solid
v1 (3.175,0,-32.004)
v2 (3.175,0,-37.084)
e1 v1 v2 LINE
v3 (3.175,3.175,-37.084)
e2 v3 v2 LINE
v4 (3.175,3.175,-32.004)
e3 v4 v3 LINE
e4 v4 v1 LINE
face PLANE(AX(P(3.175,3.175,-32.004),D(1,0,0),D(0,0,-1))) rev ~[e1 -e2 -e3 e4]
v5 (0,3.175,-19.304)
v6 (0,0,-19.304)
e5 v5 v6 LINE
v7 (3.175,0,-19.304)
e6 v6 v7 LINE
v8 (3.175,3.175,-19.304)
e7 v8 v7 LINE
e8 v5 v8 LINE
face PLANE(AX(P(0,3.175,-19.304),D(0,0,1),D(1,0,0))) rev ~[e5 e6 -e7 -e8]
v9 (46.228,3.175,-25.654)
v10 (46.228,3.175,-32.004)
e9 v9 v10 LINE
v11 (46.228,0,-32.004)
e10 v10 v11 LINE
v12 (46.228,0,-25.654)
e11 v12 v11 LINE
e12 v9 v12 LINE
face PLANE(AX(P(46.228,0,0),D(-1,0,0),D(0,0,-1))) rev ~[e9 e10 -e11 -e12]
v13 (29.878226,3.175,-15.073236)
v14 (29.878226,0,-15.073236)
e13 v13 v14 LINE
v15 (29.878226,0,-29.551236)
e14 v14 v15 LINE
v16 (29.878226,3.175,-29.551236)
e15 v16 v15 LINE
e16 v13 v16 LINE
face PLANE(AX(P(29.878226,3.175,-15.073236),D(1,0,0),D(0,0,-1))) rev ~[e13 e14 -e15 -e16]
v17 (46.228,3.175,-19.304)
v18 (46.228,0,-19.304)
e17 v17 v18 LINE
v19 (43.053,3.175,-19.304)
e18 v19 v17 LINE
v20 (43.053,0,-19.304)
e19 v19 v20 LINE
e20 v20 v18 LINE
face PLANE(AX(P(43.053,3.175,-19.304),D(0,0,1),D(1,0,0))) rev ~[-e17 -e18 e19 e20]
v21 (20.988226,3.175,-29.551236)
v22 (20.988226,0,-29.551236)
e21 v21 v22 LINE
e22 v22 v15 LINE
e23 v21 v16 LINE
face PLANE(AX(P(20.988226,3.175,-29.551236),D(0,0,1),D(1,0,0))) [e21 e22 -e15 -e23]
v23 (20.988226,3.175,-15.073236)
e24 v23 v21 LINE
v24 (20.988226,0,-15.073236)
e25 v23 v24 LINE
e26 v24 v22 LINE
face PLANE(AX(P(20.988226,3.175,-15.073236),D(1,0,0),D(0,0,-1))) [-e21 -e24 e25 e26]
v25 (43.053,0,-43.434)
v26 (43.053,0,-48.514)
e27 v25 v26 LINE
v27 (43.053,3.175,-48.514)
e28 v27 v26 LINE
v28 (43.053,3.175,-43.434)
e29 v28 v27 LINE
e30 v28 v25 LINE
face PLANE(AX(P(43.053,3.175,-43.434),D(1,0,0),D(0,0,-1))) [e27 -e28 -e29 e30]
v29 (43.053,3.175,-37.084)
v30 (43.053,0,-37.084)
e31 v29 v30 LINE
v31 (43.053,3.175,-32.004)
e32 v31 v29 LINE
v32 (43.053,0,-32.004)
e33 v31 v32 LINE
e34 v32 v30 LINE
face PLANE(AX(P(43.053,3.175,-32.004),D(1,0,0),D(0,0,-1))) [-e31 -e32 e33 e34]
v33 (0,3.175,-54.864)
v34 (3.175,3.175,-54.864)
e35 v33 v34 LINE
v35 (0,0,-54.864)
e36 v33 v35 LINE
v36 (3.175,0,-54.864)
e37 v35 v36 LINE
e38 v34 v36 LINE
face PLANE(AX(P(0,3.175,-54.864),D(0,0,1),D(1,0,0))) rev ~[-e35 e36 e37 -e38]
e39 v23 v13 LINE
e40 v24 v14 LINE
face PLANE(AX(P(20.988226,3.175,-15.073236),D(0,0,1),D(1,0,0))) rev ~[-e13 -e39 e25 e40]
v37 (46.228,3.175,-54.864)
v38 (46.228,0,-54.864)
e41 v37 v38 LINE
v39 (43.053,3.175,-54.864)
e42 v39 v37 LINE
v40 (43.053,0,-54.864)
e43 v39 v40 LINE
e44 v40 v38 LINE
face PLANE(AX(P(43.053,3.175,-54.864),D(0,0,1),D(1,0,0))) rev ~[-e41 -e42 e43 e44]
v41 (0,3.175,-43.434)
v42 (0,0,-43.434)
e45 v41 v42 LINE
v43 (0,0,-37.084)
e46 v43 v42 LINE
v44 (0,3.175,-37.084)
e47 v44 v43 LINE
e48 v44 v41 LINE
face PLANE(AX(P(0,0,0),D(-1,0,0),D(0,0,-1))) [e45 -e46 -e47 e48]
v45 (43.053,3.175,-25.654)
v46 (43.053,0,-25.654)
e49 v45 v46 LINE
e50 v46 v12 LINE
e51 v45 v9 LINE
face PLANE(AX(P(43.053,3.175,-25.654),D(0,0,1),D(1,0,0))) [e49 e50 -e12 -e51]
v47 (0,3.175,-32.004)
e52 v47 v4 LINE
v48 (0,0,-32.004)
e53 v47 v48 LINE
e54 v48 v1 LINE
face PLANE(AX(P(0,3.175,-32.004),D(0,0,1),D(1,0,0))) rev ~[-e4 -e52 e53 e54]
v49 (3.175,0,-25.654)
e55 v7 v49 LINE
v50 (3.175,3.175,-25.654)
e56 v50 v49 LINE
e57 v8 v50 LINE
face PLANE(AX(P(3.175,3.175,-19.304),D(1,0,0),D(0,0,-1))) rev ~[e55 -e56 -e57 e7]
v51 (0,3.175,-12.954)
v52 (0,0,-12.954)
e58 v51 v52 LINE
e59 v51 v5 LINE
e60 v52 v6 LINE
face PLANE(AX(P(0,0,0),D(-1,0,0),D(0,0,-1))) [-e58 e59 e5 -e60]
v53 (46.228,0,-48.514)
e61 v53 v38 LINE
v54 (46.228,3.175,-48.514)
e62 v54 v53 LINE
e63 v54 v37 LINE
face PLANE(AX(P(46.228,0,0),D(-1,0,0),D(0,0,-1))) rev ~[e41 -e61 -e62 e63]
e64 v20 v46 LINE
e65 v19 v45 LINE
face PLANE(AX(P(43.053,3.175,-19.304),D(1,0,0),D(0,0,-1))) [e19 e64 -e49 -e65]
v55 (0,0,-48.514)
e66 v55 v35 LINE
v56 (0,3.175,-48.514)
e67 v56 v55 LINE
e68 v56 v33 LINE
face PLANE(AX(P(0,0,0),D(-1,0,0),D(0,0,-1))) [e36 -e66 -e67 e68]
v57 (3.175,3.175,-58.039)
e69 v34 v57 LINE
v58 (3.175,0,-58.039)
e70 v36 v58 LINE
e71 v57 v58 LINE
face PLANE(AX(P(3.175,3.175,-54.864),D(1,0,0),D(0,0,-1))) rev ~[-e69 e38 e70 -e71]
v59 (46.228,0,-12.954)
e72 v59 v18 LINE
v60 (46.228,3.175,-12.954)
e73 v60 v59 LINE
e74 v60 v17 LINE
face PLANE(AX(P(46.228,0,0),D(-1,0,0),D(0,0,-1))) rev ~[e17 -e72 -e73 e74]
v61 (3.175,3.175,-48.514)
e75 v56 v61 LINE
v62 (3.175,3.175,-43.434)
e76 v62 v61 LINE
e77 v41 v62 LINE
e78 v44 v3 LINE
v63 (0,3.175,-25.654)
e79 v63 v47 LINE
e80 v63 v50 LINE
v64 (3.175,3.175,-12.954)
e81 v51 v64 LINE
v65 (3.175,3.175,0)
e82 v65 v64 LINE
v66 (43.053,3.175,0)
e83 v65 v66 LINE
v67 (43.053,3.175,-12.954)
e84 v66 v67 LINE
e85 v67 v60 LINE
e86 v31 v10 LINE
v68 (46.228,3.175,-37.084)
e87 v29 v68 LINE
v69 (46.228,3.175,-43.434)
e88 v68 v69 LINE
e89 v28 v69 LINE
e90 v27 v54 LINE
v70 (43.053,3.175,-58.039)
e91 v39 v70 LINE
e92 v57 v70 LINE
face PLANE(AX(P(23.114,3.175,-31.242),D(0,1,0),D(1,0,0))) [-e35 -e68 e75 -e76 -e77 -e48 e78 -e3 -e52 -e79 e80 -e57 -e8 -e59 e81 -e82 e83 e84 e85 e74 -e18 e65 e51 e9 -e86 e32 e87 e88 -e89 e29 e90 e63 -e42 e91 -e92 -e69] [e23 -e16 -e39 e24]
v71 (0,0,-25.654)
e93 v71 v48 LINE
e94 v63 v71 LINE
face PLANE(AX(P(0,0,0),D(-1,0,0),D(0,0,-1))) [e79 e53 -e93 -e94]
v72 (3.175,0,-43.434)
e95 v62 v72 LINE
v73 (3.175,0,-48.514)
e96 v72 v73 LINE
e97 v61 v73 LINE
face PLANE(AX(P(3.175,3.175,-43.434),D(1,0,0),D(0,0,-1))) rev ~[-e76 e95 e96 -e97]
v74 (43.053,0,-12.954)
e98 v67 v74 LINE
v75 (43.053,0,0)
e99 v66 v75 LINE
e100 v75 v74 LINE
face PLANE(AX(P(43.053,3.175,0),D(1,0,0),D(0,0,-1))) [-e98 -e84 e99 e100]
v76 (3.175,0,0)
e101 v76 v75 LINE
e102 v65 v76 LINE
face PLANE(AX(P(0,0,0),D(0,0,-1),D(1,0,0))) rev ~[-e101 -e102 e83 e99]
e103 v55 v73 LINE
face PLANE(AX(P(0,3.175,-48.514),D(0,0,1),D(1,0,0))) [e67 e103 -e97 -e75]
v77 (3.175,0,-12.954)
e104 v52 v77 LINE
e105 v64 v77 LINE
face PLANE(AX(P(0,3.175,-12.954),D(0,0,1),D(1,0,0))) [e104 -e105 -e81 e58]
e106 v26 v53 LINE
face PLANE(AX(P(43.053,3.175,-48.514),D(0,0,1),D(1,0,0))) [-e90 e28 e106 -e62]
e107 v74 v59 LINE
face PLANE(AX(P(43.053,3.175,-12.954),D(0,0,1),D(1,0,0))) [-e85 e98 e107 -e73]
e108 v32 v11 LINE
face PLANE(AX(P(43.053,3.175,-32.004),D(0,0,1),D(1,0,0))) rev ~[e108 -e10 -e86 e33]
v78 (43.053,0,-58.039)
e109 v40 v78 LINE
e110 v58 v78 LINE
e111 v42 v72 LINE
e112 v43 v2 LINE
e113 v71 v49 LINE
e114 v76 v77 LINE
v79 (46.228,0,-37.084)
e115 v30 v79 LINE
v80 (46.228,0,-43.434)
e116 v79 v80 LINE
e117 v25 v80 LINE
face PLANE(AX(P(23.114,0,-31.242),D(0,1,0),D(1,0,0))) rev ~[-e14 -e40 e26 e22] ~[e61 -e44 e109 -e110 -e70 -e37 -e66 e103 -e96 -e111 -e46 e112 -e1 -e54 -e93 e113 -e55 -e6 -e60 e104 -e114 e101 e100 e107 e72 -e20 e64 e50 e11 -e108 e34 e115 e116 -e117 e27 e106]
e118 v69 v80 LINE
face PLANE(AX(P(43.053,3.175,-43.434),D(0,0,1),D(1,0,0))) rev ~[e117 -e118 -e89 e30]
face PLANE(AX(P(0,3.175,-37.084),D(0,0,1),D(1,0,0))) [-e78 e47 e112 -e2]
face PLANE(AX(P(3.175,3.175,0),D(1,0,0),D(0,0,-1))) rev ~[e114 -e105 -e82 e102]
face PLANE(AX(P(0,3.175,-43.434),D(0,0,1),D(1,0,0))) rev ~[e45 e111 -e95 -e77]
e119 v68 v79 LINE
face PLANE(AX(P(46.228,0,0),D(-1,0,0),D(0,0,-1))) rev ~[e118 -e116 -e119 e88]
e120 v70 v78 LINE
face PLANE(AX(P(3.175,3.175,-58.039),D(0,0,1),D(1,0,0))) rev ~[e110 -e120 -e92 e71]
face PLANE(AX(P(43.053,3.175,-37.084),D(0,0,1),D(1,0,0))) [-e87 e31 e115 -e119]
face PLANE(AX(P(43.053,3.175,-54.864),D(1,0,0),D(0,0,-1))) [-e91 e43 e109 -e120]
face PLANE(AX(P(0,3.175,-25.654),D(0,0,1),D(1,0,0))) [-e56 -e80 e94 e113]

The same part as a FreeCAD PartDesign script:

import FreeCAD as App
import Part
import Sketcher
Q = App.Units.Quantity

doc = App.newDocument("Part")
body = doc.addObject("PartDesign::Body", "Body")

sketch1 = body.newObject("Sketcher::SketchObject", "Sketch")
sketch1.AttachmentSupport = (doc.getObject("XZ_Plane"), [""])
sketch1.MapMode = "FlatFace"
sketch1.addGeometry([
    Part.LineSegment(App.Vector(0, -62.484, 0), App.Vector(0, 0, 0)),
    Part.LineSegment(App.Vector(0, 0, 0), App.Vector(46.228, 0, 0)),
    Part.LineSegment(App.Vector(46.228, 0, 0), App.Vector(46.228, -62.484, 0)),
    Part.LineSegment(App.Vector(46.228, -62.484, 0), App.Vector(0, -62.484, 0)),
], False)
sketch1.addConstraint([
    Sketcher.Constraint("Coincident", 0, 2, 1, 1),
    Sketcher.Constraint("Coincident", 1, 2, 2, 1),
    Sketcher.Constraint("Coincident", 2, 2, 3, 1),
    Sketcher.Constraint("Coincident", 3, 2, 0, 1),
    Sketcher.Constraint("Vertical", 0),
    Sketcher.Constraint("Horizontal", 1),
    Sketcher.Constraint("Vertical", 2),
    Sketcher.Constraint("Horizontal", 3),
    Sketcher.Constraint("Coincident", 0, 2, -1, 1),
    Sketcher.Constraint("DistanceX", 1, 1, 1, 2, Q("1.82 in")),
    Sketcher.Constraint("DistanceY", 0, 1, 0, 2, Q("2.46 in")),
])
pad1 = body.newObject("PartDesign::Pad", "Pad")
pad1.Profile = sketch1
pad1.Length = Q("0.125 in")
pad1.Reversed = True

sketch2 = body.newObject("Sketcher::SketchObject", "Sketch001")
sketch2.AttachmentSupport = (doc.getObject("XZ_Plane"), [""])
sketch2.MapMode = "FlatFace"
sketch2.AttachmentOffset = App.Placement(App.Vector(0, 0, -0.125 * 25.4), App.Rotation())
sketch2.addGeometry([
    Part.LineSegment(App.Vector(43.053, -12.954, 0), App.Vector(43.053, 0, 0)),
    Part.LineSegment(App.Vector(43.053, 0, 0), App.Vector(46.228, 0, 0)),
    Part.LineSegment(App.Vector(46.228, 0, 0), App.Vector(46.228, -12.954, 0)),
    Part.LineSegment(App.Vector(46.228, -12.954, 0), App.Vector(43.053, -12.954, 0)),
    Part.LineSegment(App.Vector(43.053, -37.084, 0), App.Vector(43.053, -32.004, 0)),
    Part.LineSegment(App.Vector(43.053, -32.004, 0), App.Vector(46.228, -32.004, 0)),
    Part.LineSegment(App.Vector(46.228, -32.004, 0), App.Vector(46.228, -37.084, 0)),
    Part.LineSegment(App.Vector(46.228, -37.084, 0), App.Vector(43.053, -37.084, 0)),
    Part.LineSegment(App.Vector(43.053, -48.514, 0), App.Vector(43.053, -43.434, 0)),
    Part.LineSegment(App.Vector(43.053, -43.434, 0), App.Vector(46.228, -43.434, 0)),
    Part.LineSegment(App.Vector(46.228, -43.434, 0), App.Vector(46.228, -48.514, 0)),
    Part.LineSegment(App.Vector(46.228, -48.514, 0), App.Vector(43.053, -48.514, 0)),
    Part.LineSegment(App.Vector(43.053, -62.484, 0), App.Vector(43.053, -54.864, 0)),
    Part.LineSegment(App.Vector(43.053, -54.864, 0), App.Vector(46.228, -54.864, 0)),
    Part.LineSegment(App.Vector(46.228, -54.864, 0), App.Vector(46.228, -62.484, 0)),
    Part.LineSegment(App.Vector(46.228, -62.484, 0), App.Vector(43.053, -62.484, 0)),
    Part.LineSegment(App.Vector(43.053, -25.654, 0), App.Vector(43.053, -19.304, 0)),
    Part.LineSegment(App.Vector(43.053, -19.304, 0), App.Vector(46.228, -19.304, 0)),
    Part.LineSegment(App.Vector(46.228, -19.304, 0), App.Vector(46.228, -25.654, 0)),
    Part.LineSegment(App.Vector(46.228, -25.654, 0), App.Vector(43.053, -25.654, 0)),
    Part.LineSegment(App.Vector(0, -12.954, 0), App.Vector(0, 0, 0)),
    Part.LineSegment(App.Vector(0, 0, 0), App.Vector(3.175, 0, 0)),
    Part.LineSegment(App.Vector(3.175, 0, 0), App.Vector(3.175, -12.954, 0)),
    Part.LineSegment(App.Vector(3.175, -12.954, 0), App.Vector(0, -12.954, 0)),
    Part.LineSegment(App.Vector(0, -25.654, 0), App.Vector(0, -19.304, 0)),
    Part.LineSegment(App.Vector(0, -19.304, 0), App.Vector(3.175, -19.304, 0)),
    Part.LineSegment(App.Vector(3.175, -19.304, 0), App.Vector(3.175, -25.654, 0)),
    Part.LineSegment(App.Vector(3.175, -25.654, 0), App.Vector(0, -25.654, 0)),
    Part.LineSegment(App.Vector(0, -37.084, 0), App.Vector(0, -32.004, 0)),
    Part.LineSegment(App.Vector(0, -32.004, 0), App.Vector(3.175, -32.004, 0)),
    Part.LineSegment(App.Vector(3.175, -32.004, 0), App.Vector(3.175, -37.084, 0)),
    Part.LineSegment(App.Vector(3.175, -37.084, 0), App.Vector(0, -37.084, 0)),
    Part.LineSegment(App.Vector(0, -48.514, 0), App.Vector(0, -43.434, 0)),
    Part.LineSegment(App.Vector(0, -43.434, 0), App.Vector(3.175, -43.434, 0)),
    Part.LineSegment(App.Vector(3.175, -43.434, 0), App.Vector(3.175, -48.514, 0)),
    Part.LineSegment(App.Vector(3.175, -48.514, 0), App.Vector(0, -48.514, 0)),
    Part.LineSegment(App.Vector(0, -62.484, 0), App.Vector(0, -54.864, 0)),
    Part.LineSegment(App.Vector(0, -54.864, 0), App.Vector(3.175, -54.864, 0)),
    Part.LineSegment(App.Vector(3.175, -54.864, 0), App.Vector(3.175, -62.484, 0)),
    Part.LineSegment(App.Vector(3.175, -62.484, 0), App.Vector(0, -62.484, 0)),
    Part.LineSegment(App.Vector(20.988226, -29.551236, 0), App.Vector(20.988226, -15.073236, 0)),
    Part.LineSegment(App.Vector(20.988226, -15.073236, 0), App.Vector(29.878226, -15.073236, 0)),
    Part.LineSegment(App.Vector(29.878226, -15.073236, 0), App.Vector(29.878226, -29.551236, 0)),
    Part.LineSegment(App.Vector(29.878226, -29.551236, 0), App.Vector(20.988226, -29.551236, 0)),
], False)
sketch2.addConstraint([
    Sketcher.Constraint("Coincident", 0, 2, 1, 1),
    Sketcher.Constraint("Coincident", 1, 2, 2, 1),
    Sketcher.Constraint("Coincident", 2, 2, 3, 1),
    Sketcher.Constraint("Coincident", 3, 2, 0, 1),
    Sketcher.Constraint("Coincident", 4, 2, 5, 1),
    Sketcher.Constraint("Coincident", 5, 2, 6, 1),
    Sketcher.Constraint("Coincident", 6, 2, 7, 1),
    Sketcher.Constraint("Coincident", 7, 2, 4, 1),
    Sketcher.Constraint("Coincident", 8, 2, 9, 1),
    Sketcher.Constraint("Coincident", 9, 2, 10, 1),
    Sketcher.Constraint("Coincident", 10, 2, 11, 1),
    Sketcher.Constraint("Coincident", 11, 2, 8, 1),
    Sketcher.Constraint("Coincident", 12, 2, 13, 1),
    Sketcher.Constraint("Coincident", 13, 2, 14, 1),
    Sketcher.Constraint("Coincident", 14, 2, 15, 1),
    Sketcher.Constraint("Coincident", 15, 2, 12, 1),
    Sketcher.Constraint("Coincident", 16, 2, 17, 1),
    Sketcher.Constraint("Coincident", 17, 2, 18, 1),
    Sketcher.Constraint("Coincident", 18, 2, 19, 1),
    Sketcher.Constraint("Coincident", 19, 2, 16, 1),
    Sketcher.Constraint("Coincident", 20, 2, 21, 1),
    Sketcher.Constraint("Coincident", 21, 2, 22, 1),
    Sketcher.Constraint("Coincident", 22, 2, 23, 1),
    Sketcher.Constraint("Coincident", 23, 2, 20, 1),
    Sketcher.Constraint("Coincident", 24, 2, 25, 1),
    Sketcher.Constraint("Coincident", 25, 2, 26, 1),
    Sketcher.Constraint("Coincident", 26, 2, 27, 1),
    Sketcher.Constraint("Coincident", 27, 2, 24, 1),
    Sketcher.Constraint("Coincident", 28, 2, 29, 1),
    Sketcher.Constraint("Coincident", 29, 2, 30, 1),
    Sketcher.Constraint("Coincident", 30, 2, 31, 1),
    Sketcher.Constraint("Coincident", 31, 2, 28, 1),
    Sketcher.Constraint("Coincident", 32, 2, 33, 1),
    Sketcher.Constraint("Coincident", 33, 2, 34, 1),
    Sketcher.Constraint("Coincident", 34, 2, 35, 1),
    Sketcher.Constraint("Coincident", 35, 2, 32, 1),
    Sketcher.Constraint("Coincident", 36, 2, 37, 1),
    Sketcher.Constraint("Coincident", 37, 2, 38, 1),
    Sketcher.Constraint("Coincident", 38, 2, 39, 1),
    Sketcher.Constraint("Coincident", 39, 2, 36, 1),
    Sketcher.Constraint("Coincident", 40, 2, 41, 1),
    Sketcher.Constraint("Coincident", 41, 2, 42, 1),
    Sketcher.Constraint("Coincident", 42, 2, 43, 1),
    Sketcher.Constraint("Coincident", 43, 2, 40, 1),
    Sketcher.Constraint("Vertical", 0),
    Sketcher.Constraint("Horizontal", 1),
    Sketcher.Constraint("Vertical", 2),
    Sketcher.Constraint("Horizontal", 3),
    Sketcher.Constraint("Vertical", 4),
    Sketcher.Constraint("Horizontal", 5),
    Sketcher.Constraint("Vertical", 6),
    Sketcher.Constraint("Horizontal", 7),
    Sketcher.Constraint("Vertical", 8),
    Sketcher.Constraint("Horizontal", 9),
    Sketcher.Constraint("Vertical", 10),
    Sketcher.Constraint("Horizontal", 11),
    Sketcher.Constraint("Vertical", 12),
    Sketcher.Constraint("Horizontal", 13),
    Sketcher.Constraint("Vertical", 14),
    Sketcher.Constraint("Horizontal", 15),
    Sketcher.Constraint("Vertical", 16),
    Sketcher.Constraint("Horizontal", 17),
    Sketcher.Constraint("Vertical", 18),
    Sketcher.Constraint("Horizontal", 19),
    Sketcher.Constraint("Vertical", 20),
    Sketcher.Constraint("Horizontal", 21),
    Sketcher.Constraint("Vertical", 22),
    Sketcher.Constraint("Horizontal", 23),
    Sketcher.Constraint("Vertical", 24),
    Sketcher.Constraint("Horizontal", 25),
    Sketcher.Constraint("Vertical", 26),
    Sketcher.Constraint("Horizontal", 27),
    Sketcher.Constraint("Vertical", 28),
    Sketcher.Constraint("Horizontal", 29),
    Sketcher.Constraint("Vertical", 30),
    Sketcher.Constraint("Horizontal", 31),
    Sketcher.Constraint("Vertical", 32),
    Sketcher.Constraint("Horizontal", 33),
    Sketcher.Constraint("Vertical", 34),
    Sketcher.Constraint("Horizontal", 35),
    Sketcher.Constraint("Vertical", 36),
    Sketcher.Constraint("Horizontal", 37),
    Sketcher.Constraint("Vertical", 38),
    Sketcher.Constraint("Horizontal", 39),
    Sketcher.Constraint("Vertical", 40),
    Sketcher.Constraint("Horizontal", 41),
    Sketcher.Constraint("Vertical", 42),
    Sketcher.Constraint("Horizontal", 43),
    Sketcher.Constraint("Coincident", 20, 2, -1, 1),
    Sketcher.Constraint("PointOnObject", 0, 2, -1),
    Sketcher.Constraint("PointOnObject", 24, 2, -2),
    Sketcher.Constraint("PointOnObject", 28, 2, -2),
    Sketcher.Constraint("PointOnObject", 32, 2, -2),
    Sketcher.Constraint("PointOnObject", 36, 2, -2),
    Sketcher.Constraint("Horizontal", 3, 2, 22, 2),
    Sketcher.Constraint("Horizontal", 17, 2, 24, 2),
    Sketcher.Constraint("Horizontal", 19, 2, 26, 2),
    Sketcher.Constraint("Horizontal", 5, 2, 28, 2),
    Sketcher.Constraint("Horizontal", 7, 2, 30, 2),
    Sketcher.Constraint("Horizontal", 9, 2, 32, 2),
    Sketcher.Constraint("Horizontal", 11, 2, 34, 2),
    Sketcher.Constraint("Horizontal", 13, 2, 36, 2),
    Sketcher.Constraint("Horizontal", 15, 2, 38, 2),
    Sketcher.Constraint("Vertical", 3, 2, 4, 2),
    Sketcher.Constraint("Vertical", 2, 2, 5, 2),
    Sketcher.Constraint("Vertical", 7, 2, 8, 2),
    Sketcher.Constraint("Vertical", 6, 2, 9, 2),
    Sketcher.Constraint("Vertical", 11, 2, 12, 2),
    Sketcher.Constraint("Vertical", 10, 2, 13, 2),
    Sketcher.Constraint("Vertical", 15, 2, 16, 2),
    Sketcher.Constraint("Vertical", 14, 2, 17, 2),
    Sketcher.Constraint("Vertical", 22, 2, 25, 2),
    Sketcher.Constraint("Vertical", 26, 2, 29, 2),
    Sketcher.Constraint("Vertical", 30, 2, 33, 2),
    Sketcher.Constraint("Vertical", 34, 2, 37, 2),
    Sketcher.Constraint("Equal", 19, 21),
    Sketcher.Constraint("Equal", 6, 8),
    Sketcher.Constraint("DistanceY", 4, 1, 4, 2, Q("0.2 in")),
    Sketcher.Constraint("DistanceY", 12, 1, 12, 2, Q("0.3 in")),
    Sketcher.Constraint("DistanceX", 41, 1, 41, 2, Q("0.35 in")),
    Sketcher.Constraint("DistanceY", 0, 1, 0, 2, Q("0.51 in")),
    Sketcher.Constraint("DistanceY", 16, 1, 16, 2, Q("0.25 in")),
    Sketcher.Constraint("DistanceY", 40, 1, 40, 2, Q("0.57 in")),
    Sketcher.Constraint("DistanceY", 8, 2, 3, 2, Q("1.2 in")),
    Sketcher.Constraint("DistanceY", 12, 2, 7, 2, Q("0.7 in")),
    Sketcher.Constraint("DistanceY", 4, 2, 16, 2, Q("0.5 in")),
    Sketcher.Constraint("DistanceY", 19, 2, 22, 2, Q("0.5 in")),
    Sketcher.Constraint("DistanceX", 1, 1, 1, 2, Q("0.125 in")),
    Sketcher.Constraint("DistanceX", -1, 1, 1, 2, Q("1.82 in")),
    Sketcher.Constraint("DistanceX", -1, 1, 40, 2, 20.988226),
    Sketcher.Constraint("DistanceY", 40, 2, -1, 1, 15.073236),
])
pocket1 = body.newObject("PartDesign::Pocket", "Pocket")
pocket1.Profile = sketch2
pocket1.Length = Q("0.16 in")
pocket1.Reversed = True

sketch3 = body.newObject("Sketcher::SketchObject", "Sketch002")
sketch3.AttachmentSupport = (doc.getObject("XZ_Plane"), [""])
sketch3.MapMode = "FlatFace"
sketch3.AttachmentOffset = App.Placement(App.Vector(0, 0, -0.125 * 25.4), App.Rotation())
sketch3.addGeometry([
    Part.LineSegment(App.Vector(3.175, -62.484, 0), App.Vector(3.175, -58.039, 0)),
    Part.LineSegment(App.Vector(3.175, -58.039, 0), App.Vector(43.053, -58.039, 0)),
    Part.LineSegment(App.Vector(43.053, -58.039, 0), App.Vector(43.053, -62.484, 0)),
    Part.LineSegment(App.Vector(43.053, -62.484, 0), App.Vector(3.175, -62.484, 0)),
], False)
sketch3.addConstraint([
    Sketcher.Constraint("Coincident", 0, 2, 1, 1),
    Sketcher.Constraint("Coincident", 1, 2, 2, 1),
    Sketcher.Constraint("Coincident", 2, 2, 3, 1),
    Sketcher.Constraint("Coincident", 3, 2, 0, 1),
    Sketcher.Constraint("Vertical", 0),
    Sketcher.Constraint("Horizontal", 1),
    Sketcher.Constraint("Vertical", 2),
    Sketcher.Constraint("Horizontal", 3),
    Sketcher.Constraint("DistanceX", 1, 1, 1, 2, Q("1.57 in")),
    Sketcher.Constraint("DistanceY", 0, 1, 0, 2, Q("0.175 in")),
    Sketcher.Constraint("DistanceY", 2, 2, -1, 1, Q("2.46 in")),
    Sketcher.Constraint("DistanceX", -1, 1, 0, 2, Q("0.125 in")),
])
pocket2 = body.newObject("PartDesign::Pocket", "Pocket001")
pocket2.Profile = sketch3
pocket2.Length = Q("0.16 in")
pocket2.Reversed = True

doc.recompute()
